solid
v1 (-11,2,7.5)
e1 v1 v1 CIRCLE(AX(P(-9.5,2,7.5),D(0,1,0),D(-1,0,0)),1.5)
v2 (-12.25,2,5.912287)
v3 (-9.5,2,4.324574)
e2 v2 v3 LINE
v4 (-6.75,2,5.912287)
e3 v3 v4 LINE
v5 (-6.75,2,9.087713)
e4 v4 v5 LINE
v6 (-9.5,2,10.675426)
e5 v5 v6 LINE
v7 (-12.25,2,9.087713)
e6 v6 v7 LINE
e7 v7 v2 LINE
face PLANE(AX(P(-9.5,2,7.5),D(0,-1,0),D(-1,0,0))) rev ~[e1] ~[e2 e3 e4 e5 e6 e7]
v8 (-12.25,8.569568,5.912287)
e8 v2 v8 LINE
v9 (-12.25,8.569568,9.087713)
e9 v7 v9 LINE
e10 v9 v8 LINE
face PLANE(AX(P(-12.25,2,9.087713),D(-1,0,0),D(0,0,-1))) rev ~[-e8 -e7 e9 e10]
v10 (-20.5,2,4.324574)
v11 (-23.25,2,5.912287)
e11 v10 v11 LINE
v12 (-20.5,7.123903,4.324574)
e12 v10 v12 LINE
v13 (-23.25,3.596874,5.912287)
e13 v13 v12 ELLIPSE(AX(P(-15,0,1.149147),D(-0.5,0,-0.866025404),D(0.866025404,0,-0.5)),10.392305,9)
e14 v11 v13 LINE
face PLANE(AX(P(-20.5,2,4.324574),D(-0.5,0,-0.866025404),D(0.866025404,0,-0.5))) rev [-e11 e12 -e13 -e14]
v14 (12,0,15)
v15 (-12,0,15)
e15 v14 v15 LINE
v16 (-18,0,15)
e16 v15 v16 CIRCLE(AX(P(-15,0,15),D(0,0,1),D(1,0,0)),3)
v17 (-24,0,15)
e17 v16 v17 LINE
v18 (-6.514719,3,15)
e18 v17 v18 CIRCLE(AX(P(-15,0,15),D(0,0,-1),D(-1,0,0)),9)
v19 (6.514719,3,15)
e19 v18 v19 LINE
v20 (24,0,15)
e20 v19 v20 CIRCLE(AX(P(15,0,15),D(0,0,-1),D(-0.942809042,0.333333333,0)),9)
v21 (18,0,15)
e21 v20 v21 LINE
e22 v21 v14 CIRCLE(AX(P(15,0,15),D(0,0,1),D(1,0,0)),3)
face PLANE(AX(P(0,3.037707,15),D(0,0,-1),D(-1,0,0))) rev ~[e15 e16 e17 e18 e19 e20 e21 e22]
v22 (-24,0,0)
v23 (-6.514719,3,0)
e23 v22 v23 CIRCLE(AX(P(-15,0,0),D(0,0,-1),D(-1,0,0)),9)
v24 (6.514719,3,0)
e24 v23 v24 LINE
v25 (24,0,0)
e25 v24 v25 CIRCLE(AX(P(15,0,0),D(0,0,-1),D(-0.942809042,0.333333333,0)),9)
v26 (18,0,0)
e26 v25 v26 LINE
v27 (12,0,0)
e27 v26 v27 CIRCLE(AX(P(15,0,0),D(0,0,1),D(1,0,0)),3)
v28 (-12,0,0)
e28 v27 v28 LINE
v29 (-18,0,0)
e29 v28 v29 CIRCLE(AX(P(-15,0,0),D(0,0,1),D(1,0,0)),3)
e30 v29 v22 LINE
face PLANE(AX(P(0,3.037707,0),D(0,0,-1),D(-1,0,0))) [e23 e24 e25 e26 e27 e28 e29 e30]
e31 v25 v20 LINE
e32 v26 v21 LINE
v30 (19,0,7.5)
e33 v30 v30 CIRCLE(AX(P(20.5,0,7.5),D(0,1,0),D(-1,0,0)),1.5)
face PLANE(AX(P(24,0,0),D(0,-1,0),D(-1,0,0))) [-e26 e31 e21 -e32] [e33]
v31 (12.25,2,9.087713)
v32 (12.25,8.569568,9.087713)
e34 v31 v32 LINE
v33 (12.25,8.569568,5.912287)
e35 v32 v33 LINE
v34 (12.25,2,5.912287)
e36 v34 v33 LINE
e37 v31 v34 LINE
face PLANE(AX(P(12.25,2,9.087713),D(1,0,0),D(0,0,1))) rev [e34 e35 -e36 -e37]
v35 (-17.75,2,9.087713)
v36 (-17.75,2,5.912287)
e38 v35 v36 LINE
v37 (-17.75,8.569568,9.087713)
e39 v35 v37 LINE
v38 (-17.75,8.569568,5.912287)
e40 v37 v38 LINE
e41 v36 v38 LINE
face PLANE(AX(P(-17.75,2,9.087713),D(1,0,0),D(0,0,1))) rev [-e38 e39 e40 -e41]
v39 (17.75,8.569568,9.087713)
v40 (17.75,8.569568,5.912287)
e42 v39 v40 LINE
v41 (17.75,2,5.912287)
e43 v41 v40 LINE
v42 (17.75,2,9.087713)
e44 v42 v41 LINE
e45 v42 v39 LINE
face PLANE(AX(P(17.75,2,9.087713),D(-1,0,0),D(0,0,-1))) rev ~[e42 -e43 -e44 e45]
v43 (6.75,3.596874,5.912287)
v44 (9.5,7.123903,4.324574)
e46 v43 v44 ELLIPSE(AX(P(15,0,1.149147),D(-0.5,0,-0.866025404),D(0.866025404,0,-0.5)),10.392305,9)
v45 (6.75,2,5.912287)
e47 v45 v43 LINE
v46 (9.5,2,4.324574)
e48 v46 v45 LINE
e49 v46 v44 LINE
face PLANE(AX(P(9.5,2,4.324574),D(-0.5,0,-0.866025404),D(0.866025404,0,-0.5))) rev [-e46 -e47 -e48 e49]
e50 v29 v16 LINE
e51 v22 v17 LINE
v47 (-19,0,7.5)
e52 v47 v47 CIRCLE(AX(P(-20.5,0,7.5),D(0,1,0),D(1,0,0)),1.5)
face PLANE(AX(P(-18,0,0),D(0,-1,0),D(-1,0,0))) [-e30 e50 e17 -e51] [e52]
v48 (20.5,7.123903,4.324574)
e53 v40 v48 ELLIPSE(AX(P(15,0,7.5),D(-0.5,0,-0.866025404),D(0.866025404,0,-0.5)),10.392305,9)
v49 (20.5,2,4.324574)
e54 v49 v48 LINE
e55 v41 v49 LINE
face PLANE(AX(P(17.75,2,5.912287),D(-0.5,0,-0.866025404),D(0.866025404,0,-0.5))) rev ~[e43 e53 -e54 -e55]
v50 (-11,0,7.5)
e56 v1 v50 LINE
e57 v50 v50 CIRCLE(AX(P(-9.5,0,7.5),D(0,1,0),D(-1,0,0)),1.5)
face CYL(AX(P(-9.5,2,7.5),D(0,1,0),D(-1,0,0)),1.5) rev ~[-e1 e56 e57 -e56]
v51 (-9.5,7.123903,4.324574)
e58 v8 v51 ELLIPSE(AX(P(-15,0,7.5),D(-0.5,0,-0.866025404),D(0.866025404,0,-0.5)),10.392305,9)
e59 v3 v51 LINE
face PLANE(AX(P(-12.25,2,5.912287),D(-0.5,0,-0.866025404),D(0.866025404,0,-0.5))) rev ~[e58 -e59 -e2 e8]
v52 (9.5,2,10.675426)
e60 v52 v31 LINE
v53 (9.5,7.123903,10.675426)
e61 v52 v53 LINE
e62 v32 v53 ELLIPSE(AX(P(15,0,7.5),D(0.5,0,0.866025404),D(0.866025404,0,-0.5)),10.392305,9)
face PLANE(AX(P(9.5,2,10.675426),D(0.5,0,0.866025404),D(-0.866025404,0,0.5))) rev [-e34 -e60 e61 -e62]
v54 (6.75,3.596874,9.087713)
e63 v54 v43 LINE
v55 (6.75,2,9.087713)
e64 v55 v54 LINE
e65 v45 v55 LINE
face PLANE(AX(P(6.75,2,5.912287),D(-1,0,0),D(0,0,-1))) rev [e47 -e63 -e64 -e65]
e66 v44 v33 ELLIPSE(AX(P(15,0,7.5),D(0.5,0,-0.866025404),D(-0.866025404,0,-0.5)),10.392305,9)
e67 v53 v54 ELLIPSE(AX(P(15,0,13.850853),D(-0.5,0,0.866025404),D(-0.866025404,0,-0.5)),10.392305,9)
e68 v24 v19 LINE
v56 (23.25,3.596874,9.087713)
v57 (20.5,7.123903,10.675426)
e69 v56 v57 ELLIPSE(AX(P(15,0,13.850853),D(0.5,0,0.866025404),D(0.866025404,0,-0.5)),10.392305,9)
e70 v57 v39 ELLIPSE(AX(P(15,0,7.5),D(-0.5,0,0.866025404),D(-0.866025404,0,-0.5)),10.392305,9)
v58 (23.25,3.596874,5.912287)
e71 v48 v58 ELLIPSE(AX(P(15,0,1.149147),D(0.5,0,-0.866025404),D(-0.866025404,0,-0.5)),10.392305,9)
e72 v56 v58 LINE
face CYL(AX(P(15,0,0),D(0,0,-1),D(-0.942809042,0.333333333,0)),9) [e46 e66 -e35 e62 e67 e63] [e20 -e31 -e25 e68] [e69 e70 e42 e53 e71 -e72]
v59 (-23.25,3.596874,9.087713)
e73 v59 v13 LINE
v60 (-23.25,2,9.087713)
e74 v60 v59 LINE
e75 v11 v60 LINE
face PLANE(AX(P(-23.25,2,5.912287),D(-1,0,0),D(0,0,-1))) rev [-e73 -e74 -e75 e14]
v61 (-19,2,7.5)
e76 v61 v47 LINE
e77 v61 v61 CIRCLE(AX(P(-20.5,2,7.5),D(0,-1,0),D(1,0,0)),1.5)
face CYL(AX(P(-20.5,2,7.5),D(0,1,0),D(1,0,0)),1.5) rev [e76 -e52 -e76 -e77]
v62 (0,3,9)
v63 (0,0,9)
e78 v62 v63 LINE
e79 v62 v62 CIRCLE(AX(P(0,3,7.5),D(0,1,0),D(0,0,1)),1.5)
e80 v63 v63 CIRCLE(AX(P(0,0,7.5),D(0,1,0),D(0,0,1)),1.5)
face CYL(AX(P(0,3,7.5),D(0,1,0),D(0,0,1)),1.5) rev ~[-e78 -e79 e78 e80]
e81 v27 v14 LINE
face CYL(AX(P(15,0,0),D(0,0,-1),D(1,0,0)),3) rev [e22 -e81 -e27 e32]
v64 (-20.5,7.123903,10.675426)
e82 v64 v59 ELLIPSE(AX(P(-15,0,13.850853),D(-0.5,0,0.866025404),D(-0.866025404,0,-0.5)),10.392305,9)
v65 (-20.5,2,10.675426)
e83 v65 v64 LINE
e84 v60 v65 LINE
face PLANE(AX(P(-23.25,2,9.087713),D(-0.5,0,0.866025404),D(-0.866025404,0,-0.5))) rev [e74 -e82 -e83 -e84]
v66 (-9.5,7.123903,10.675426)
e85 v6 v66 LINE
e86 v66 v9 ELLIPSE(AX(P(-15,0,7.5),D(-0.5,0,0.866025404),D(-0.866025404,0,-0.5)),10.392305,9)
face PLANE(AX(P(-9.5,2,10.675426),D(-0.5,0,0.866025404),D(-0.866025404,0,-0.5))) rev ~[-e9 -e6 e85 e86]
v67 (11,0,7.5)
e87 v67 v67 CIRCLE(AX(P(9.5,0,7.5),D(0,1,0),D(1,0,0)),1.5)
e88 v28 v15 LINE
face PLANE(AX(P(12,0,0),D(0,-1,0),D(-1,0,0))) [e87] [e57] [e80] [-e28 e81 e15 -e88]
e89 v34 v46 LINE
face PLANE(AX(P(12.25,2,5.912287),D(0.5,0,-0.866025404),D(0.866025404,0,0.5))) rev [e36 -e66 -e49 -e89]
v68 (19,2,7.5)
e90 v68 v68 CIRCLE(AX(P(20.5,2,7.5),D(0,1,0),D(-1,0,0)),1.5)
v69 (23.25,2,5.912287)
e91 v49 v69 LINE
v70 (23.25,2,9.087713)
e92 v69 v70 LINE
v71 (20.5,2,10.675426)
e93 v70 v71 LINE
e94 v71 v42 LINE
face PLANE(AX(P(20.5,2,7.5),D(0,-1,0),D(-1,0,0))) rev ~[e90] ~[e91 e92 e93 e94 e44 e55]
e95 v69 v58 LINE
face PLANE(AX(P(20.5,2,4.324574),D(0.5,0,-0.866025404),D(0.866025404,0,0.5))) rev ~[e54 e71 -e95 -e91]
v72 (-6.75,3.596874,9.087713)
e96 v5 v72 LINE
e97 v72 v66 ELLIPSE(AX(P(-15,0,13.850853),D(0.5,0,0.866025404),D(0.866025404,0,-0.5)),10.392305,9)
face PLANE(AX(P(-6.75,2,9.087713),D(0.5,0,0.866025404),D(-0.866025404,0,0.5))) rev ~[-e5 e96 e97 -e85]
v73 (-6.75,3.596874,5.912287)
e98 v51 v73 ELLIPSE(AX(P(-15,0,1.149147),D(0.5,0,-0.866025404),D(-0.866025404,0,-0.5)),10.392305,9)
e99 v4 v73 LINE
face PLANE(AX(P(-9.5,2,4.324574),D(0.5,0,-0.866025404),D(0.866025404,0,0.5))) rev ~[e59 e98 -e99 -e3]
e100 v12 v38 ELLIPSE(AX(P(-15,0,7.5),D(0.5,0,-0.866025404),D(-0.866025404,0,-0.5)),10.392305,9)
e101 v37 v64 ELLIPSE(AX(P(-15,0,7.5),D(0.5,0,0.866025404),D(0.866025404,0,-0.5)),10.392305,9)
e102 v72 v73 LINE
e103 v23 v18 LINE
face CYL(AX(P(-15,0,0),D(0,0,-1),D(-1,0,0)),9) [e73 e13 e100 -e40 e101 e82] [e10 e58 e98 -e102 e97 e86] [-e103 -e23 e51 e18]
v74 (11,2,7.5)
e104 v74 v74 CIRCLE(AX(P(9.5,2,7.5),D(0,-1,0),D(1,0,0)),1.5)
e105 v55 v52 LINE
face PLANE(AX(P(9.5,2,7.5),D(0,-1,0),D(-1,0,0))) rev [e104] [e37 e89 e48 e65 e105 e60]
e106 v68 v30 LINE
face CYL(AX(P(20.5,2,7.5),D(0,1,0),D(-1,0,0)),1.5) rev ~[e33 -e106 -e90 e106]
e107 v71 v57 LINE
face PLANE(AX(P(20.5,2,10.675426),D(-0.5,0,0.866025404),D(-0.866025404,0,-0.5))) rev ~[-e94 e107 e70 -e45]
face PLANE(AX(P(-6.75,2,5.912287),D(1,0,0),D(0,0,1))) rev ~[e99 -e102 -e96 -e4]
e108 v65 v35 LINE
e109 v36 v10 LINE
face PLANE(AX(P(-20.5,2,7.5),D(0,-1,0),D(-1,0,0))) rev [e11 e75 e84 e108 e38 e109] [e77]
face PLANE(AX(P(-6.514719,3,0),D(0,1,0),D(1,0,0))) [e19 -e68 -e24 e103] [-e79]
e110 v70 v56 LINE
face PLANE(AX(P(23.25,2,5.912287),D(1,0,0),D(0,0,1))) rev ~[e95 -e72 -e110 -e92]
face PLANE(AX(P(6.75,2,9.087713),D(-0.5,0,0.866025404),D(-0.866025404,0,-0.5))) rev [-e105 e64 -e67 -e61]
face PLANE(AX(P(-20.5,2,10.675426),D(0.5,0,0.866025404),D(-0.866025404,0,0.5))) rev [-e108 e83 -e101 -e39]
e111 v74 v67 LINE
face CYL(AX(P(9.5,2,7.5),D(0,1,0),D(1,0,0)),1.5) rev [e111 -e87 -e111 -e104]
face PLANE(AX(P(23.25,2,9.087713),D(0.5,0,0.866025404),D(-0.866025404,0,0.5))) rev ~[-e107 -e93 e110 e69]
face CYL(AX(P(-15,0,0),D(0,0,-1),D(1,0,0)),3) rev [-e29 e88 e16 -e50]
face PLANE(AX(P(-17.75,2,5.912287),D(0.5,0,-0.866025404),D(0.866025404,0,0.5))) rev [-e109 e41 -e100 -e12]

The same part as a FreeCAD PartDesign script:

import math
import FreeCAD as App
import Part
import Sketcher
from FreeCAD import Vector
Q = App.Units.Quantity


def add_polygon(sketch, points):
    """Adds a closed chain of lines whose ends are joined by coincident constraints."""
    first, n = sketch.GeometryCount, len(points)
    for a, b in zip(points, points[1:] + points[:1]):
        sketch.addGeometry(Part.LineSegment(App.Vector(*a, 0), App.Vector(*b, 0)), False)
    for i in range(n):
        sketch.addConstraint(Sketcher.Constraint("Coincident", first + i, 2, first + (i + 1) % n, 1))

doc = App.newDocument("Part")
body = doc.addObject("PartDesign::Body", "Body")

# Sketch on XY plane
sketch1 = body.newObject("Sketcher::SketchObject", "Sketch")
sketch1.AttachmentSupport = (doc.getObject("XY_Plane"), [""])
sketch1.MapMode = "FlatFace"
sketch1.addGeometry([
    Part.LineSegment(Vector(-12, 0, 0), Vector(12, 0, 0)),  # 0
    Part.ArcOfCircle(Part.Circle(Vector(15, 0, 0), Vector(0, 0, 1), 3), math.radians(0), math.radians(180)),  # 1
    Part.LineSegment(Vector(18, 0, 0), Vector(24, 0, 0)),  # 2
    Part.ArcOfCircle(Part.Circle(Vector(15, 0, 0), Vector(0, 0, 1), 9), math.radians(0), math.radians(160.528779)),  # 3
    Part.LineSegment(Vector(6.514719, 3, 0), Vector(-6.514719, 3, 0)),  # 4
    Part.ArcOfCircle(Part.Circle(Vector(-15, 0, 0), Vector(0, 0, 1), 9), math.radians(19.471221), math.radians(180)),  # 5
    Part.LineSegment(Vector(-24, 0, 0), Vector(-18, 0, 0)),  # 6
    Part.ArcOfCircle(Part.Circle(Vector(-15, 0, 0), Vector(0, 0, 1), 3), math.radians(0), math.radians(180)),  # 7
], False)
sketch1.addConstraint([
    Sketcher.Constraint("Coincident", 0, 2, 1, 2),
    Sketcher.Constraint("Coincident", 1, 1, 2, 1),
    Sketcher.Constraint("Coincident", 2, 2, 3, 1),
    Sketcher.Constraint("Coincident", 3, 2, 4, 1),
    Sketcher.Constraint("Coincident", 4, 2, 5, 1),
    Sketcher.Constraint("Coincident", 5, 2, 6, 1),
    Sketcher.Constraint("Coincident", 6, 2, 7, 2),
    Sketcher.Constraint("Coincident", 7, 1, 0, 1),
    Sketcher.Constraint("Horizontal", 0),
    Sketcher.Constraint("Horizontal", 2),
    Sketcher.Constraint("Horizontal", 4),
    Sketcher.Constraint("Horizontal", 6),
    Sketcher.Constraint("Coincident", 3, 3, 1, 3),
    Sketcher.Constraint("Coincident", 7, 3, 5, 3),
    Sketcher.Constraint("Equal", 3, 5),
    Sketcher.Constraint("Equal", 1, 7),
    Sketcher.Constraint("Symmetric", 1, 3, 5, 3, -1, 1),
    Sketcher.Constraint("PointOnObject", 1, 3, -1),
    Sketcher.Constraint("PointOnObject", 0, 2, -1),
    Sketcher.Constraint("PointOnObject", 1, 1, -1),
    Sketcher.Constraint("PointOnObject", 5, 2, -1),
    Sketcher.Constraint("Radius", 1, 3.0),
    Sketcher.Constraint("Radius", 3, 9.0),
    Sketcher.Constraint("DistanceX", 0, 1, 0, 2, 24.0),
    Sketcher.Constraint("DistanceY", -1, 1, 3, 2, 3.0),
])
pad1 = body.newObject("PartDesign::Pad", "Pad")
pad1.Profile = sketch1
pad1.Length = 15

# Sketch on XZ plane
sketch2 = body.newObject("Sketcher::SketchObject", "Sketch001")
sketch2.AttachmentSupport = (doc.getObject("XZ_Plane"), [""])
sketch2.MapMode = "FlatFace"
sketch2.AttachmentOffset = App.Placement(Vector(0, 0, -2), App.Rotation())
add_polygon(sketch2, [(20.5, 10.675426), (17.75, 9.087713), (17.75, 5.912287), (20.5, 4.324574), (23.25, 5.912287), (23.25, 9.087713)])  # lines 0-5
sketch2.addConstraint([
    Sketcher.Constraint("Vertical", 1),
    Sketcher.Constraint("Vertical", 4),
    Sketcher.Constraint("Parallel", 0, 3),
    Sketcher.Constraint("Parallel", 2, 5),
    Sketcher.Constraint("Horizontal", 1, 2, 3, 2),
    Sketcher.Constraint("Horizontal", 0, 2, 4, 2),
    Sketcher.Constraint("Vertical", 2, 2, 5, 2),
    Sketcher.Constraint("Angle", 0, Q("-150 deg")),
    Sketcher.Constraint("DistanceX", -1, 1, 2, 2, 20.5),
    Sketcher.Constraint("DistanceX", 1, 2, 3, 2, 5.5),
    Sketcher.Constraint("DistanceY", 1, 2, 1, 1, 3.175426),
    Sketcher.Constraint("DistanceY", -1, 1, 0, 2, 9.087713),
])
pocket1 = body.newObject("PartDesign::Pocket", "Pocket")
pocket1.Profile = sketch2
pocket1.Length = 30

# Sketch on XZ plane
sketch3 = body.newObject("Sketcher::SketchObject", "Sketch002")
sketch3.AttachmentSupport = (doc.getObject("XZ_Plane"), [""])
sketch3.MapMode = "FlatFace"
sketch3.AttachmentOffset = App.Placement(Vector(0, 0, -2), App.Rotation())
sketch3.addGeometry(Part.Circle(Vector(20.5, 7.5, 0), Vector(0, 0, 1), 1.5), False)
sketch3.addConstraint([
    Sketcher.Constraint("Diameter", 0, 3.0),
    Sketcher.Constraint("DistanceX", -1, 1, 0, 3, 20.5),
    Sketcher.Constraint("DistanceY", -1, 1, 0, 3, 7.5),
])
pocket2 = body.newObject("PartDesign::Pocket", "Pocket001")
pocket2.Profile = sketch3
pocket2.Length = 30
pocket2.Reversed = True
doc.recompute()

datumplane = body.newObject("PartDesign::Plane", "DatumPlane")
datumplane.AttachmentSupport = (doc.getObject("YZ_Plane"), [""])
datumplane.MapMode = "FlatFace"
datumplane.AttachmentOffset = App.Placement(Vector(0, 0, 15), App.Rotation())
mirrored = body.newObject("PartDesign::Mirrored", "Mirrored")
mirrored.Originals = [pocket1, pocket2]
mirrored.MirrorPlane = (datumplane, [""])
body.Tip = mirrored
doc.recompute()

mirrored2 = body.newObject("PartDesign::Mirrored", "Mirrored001")
mirrored2.Originals = [pocket1, pocket2]
mirrored2.MirrorPlane = (doc.getObject("YZ_Plane"), [""])
body.Tip = mirrored2

# Sketch on XZ plane
sketch4 = body.newObject("Sketcher::SketchObject", "Sketch003")
sketch4.AttachmentSupport = (doc.getObject("XZ_Plane"), [""])
sketch4.MapMode = "FlatFace"
sketch4.AttachmentOffset = App.Placement(Vector(0, 0, -2), App.Rotation())
add_polygon(sketch4, [(-9.5, 10.675426), (-12.25, 9.087713), (-12.25, 5.912287), (-9.5, 4.324574), (-6.75, 5.912287), (-6.75, 9.087713)])  # lines 0-5
sketch4.addConstraint([
    Sketcher.Constraint("Vertical", 1),
    Sketcher.Constraint("Vertical", 4),
    Sketcher.Constraint("Parallel", 0, 3),
    Sketcher.Constraint("Parallel", 2, 5),
    Sketcher.Constraint("Horizontal", 1, 2, 3, 2),
    Sketcher.Constraint("Horizontal", 0, 2, 4, 2),
    Sketcher.Constraint("Vertical", 2, 2, 5, 2),
    Sketcher.Constraint("Angle", 0, Q("-150 deg")),
    Sketcher.Constraint("DistanceX", 2, 2, -1, 1, 9.5),
    Sketcher.Constraint("DistanceX", 1, 2, 3, 2, 5.5),
    Sketcher.Constraint("DistanceY", 1, 2, 1, 1, 3.175426),
    Sketcher.Constraint("DistanceY", -1, 1, 0, 2, 9.087713),
])
pocket3 = body.newObject("PartDesign::Pocket", "Pocket002")
pocket3.Profile = sketch4
pocket3.Length = 30

# Sketch on XZ plane
sketch5 = body.newObject("Sketcher::SketchObject", "Sketch004")
sketch5.AttachmentSupport = (doc.getObject("XZ_Plane"), [""])
sketch5.MapMode = "FlatFace"
sketch5.AttachmentOffset = App.Placement(Vector(0, 0, -2), App.Rotation())
sketch5.addGeometry(Part.Circle(Vector(-9.5, 7.5, 0), Vector(0, 0, 1), 1.5), False)
sketch5.addConstraint([
    Sketcher.Constraint("Diameter", 0, 3.0),
    Sketcher.Constraint("DistanceX", 0, 3, -1, 1, 9.5),
    Sketcher.Constraint("DistanceY", -1, 1, 0, 3, 7.5),
])
pocket4 = body.newObject("PartDesign::Pocket", "Pocket003")
pocket4.Profile = sketch5
pocket4.Length = 30
pocket4.Reversed = True

# Sketch on XZ plane
sketch6 = body.newObject("Sketcher::SketchObject", "Sketch005")
sketch6.AttachmentSupport = (doc.getObject("XZ_Plane"), [""])
sketch6.MapMode = "FlatFace"
sketch6.AttachmentOffset = App.Placement(Vector(0, 0, -3), App.Rotation())
sketch6.addGeometry(Part.Circle(Vector(0, 7.5, 0), Vector(0, 0, 1), 1.5), False)
sketch6.addConstraint([
    Sketcher.Constraint("PointOnObject", 0, 3, -2),
    Sketcher.Constraint("Diameter", 0, 3.0),
    Sketcher.Constraint("DistanceY", -1, 1, 0, 3, 7.5),
])
pocket5 = body.newObject("PartDesign::Pocket", "Pocket004")
pocket5.Profile = sketch6
pocket5.Length = 5
pocket5.Reversed = True

doc.recompute()
